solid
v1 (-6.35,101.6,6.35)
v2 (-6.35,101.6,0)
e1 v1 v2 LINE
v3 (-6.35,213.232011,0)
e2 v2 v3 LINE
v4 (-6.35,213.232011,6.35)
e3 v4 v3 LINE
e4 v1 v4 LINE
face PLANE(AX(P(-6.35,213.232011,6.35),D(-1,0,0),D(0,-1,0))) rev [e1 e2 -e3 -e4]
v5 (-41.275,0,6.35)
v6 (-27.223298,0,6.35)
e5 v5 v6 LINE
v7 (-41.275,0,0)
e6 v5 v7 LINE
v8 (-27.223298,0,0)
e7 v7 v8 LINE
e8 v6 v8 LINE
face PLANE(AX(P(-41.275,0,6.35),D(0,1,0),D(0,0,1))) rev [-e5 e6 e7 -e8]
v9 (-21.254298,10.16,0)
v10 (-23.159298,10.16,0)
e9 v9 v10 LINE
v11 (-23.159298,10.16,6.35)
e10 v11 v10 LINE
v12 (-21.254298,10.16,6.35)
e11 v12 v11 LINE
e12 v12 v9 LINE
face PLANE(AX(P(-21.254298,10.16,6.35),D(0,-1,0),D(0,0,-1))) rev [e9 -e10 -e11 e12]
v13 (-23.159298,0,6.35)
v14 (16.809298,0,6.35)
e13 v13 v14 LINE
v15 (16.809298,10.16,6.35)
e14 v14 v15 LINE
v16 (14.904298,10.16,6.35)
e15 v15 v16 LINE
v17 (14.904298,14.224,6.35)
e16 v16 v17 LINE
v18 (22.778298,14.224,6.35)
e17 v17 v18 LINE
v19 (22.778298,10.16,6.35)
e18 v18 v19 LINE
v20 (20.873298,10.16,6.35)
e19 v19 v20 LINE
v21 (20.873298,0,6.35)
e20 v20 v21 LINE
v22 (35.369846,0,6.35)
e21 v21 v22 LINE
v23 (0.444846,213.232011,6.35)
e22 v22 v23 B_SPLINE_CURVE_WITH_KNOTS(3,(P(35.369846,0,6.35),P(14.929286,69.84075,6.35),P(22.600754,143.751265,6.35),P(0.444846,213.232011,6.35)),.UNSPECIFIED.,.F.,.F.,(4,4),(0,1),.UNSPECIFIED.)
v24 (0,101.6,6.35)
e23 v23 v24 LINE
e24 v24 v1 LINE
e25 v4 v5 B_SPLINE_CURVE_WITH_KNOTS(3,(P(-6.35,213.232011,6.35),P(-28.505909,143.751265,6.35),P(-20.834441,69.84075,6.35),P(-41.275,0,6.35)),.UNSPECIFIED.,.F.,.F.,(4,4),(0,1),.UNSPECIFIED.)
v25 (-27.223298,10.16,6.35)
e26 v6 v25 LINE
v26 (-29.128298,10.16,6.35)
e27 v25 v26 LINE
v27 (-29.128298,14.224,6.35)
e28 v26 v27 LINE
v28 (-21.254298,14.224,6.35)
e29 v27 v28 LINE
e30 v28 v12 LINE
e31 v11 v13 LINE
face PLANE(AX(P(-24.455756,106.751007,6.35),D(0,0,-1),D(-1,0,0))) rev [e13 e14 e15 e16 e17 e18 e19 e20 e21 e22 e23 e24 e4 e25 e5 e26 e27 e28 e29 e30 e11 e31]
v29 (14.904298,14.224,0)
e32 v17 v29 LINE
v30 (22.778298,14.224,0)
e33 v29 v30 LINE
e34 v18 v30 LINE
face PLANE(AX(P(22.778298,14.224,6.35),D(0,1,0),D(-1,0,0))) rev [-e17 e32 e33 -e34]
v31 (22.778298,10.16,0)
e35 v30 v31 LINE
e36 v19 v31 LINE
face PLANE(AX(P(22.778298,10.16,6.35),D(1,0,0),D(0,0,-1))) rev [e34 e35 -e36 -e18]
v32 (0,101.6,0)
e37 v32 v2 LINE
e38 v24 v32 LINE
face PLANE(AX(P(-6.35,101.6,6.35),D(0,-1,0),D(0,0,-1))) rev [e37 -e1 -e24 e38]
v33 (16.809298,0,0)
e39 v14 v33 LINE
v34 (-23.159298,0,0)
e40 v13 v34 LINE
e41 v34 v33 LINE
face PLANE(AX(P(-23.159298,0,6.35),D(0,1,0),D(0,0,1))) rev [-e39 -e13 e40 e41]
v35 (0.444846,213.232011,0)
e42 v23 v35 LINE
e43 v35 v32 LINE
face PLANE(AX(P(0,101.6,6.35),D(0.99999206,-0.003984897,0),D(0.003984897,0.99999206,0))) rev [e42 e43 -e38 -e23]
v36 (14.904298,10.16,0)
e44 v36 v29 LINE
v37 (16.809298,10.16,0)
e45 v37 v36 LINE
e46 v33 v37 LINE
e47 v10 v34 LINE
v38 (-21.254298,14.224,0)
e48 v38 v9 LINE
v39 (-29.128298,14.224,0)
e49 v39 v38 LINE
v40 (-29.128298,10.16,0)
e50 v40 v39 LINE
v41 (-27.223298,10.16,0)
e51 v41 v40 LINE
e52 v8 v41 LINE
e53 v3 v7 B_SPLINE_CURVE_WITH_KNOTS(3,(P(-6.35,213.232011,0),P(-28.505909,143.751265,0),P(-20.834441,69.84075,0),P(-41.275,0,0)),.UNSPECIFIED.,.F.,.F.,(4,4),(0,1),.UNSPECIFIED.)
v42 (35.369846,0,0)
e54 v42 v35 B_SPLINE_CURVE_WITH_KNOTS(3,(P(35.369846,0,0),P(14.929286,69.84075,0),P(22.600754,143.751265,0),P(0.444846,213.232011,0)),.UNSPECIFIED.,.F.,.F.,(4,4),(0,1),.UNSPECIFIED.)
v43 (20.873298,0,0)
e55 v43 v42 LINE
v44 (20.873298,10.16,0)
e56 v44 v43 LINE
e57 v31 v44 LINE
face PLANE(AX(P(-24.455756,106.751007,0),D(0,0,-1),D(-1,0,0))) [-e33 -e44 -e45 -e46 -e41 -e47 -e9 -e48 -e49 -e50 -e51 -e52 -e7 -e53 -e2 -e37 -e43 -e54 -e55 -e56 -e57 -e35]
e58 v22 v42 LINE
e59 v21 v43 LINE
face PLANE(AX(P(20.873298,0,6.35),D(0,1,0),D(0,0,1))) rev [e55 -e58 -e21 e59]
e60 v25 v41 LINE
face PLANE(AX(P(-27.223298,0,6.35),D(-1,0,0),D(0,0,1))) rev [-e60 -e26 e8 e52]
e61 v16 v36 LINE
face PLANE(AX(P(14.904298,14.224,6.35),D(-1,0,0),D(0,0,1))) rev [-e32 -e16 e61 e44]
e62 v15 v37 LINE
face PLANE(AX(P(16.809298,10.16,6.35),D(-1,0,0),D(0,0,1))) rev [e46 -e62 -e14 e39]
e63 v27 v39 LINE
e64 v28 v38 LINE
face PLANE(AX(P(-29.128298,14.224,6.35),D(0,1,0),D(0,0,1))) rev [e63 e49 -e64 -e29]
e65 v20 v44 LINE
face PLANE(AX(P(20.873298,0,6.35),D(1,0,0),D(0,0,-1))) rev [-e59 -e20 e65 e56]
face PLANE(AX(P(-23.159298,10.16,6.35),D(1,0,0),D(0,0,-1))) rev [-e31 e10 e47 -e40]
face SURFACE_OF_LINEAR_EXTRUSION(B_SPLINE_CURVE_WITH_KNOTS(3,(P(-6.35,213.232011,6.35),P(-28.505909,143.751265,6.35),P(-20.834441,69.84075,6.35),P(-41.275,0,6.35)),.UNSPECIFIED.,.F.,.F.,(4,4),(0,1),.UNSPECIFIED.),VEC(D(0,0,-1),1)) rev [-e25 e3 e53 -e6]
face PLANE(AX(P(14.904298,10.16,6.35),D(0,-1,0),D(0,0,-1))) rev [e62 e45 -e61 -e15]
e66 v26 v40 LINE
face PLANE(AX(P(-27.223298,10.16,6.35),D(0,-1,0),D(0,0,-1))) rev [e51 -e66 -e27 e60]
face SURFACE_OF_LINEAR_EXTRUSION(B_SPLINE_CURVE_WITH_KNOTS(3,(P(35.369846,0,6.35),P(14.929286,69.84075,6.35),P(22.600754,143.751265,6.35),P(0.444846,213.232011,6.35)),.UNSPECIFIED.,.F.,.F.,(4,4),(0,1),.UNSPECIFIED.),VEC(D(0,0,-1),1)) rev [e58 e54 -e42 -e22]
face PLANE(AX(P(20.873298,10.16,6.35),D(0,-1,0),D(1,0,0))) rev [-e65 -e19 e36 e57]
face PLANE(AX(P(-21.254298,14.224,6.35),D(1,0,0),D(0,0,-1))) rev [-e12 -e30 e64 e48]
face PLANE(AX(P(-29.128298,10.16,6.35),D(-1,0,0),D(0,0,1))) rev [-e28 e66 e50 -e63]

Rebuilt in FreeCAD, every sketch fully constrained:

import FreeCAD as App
import Part
import Sketcher

V = App.Vector
Q = App.Units.Quantity

doc = App.newDocument("Part")
body = doc.addObject("PartDesign::Body", "Body")

# Sketch on XY plane
sketch1 = body.newObject("Sketcher::SketchObject", "Sketch")
sketch1.AttachmentSupport = (doc.getObject("XY_Plane"), [""])
sketch1.MapMode = "FlatFace"
sketch1.addGeometry(Part.LineSegment(V(-41.275, 0, 0), V(-27.223298, 0, 0)), False)
sketch1.addGeometry(Part.LineSegment(V(-27.223298, 0, 0), V(-27.223298, 10.16, 0)), False)
sketch1.addGeometry(Part.LineSegment(V(-27.223298, 10.16, 0), V(-29.128298, 10.16, 0)), False)
sketch1.addGeometry(Part.LineSegment(V(-29.128298, 10.16, 0), V(-29.128298, 14.224, 0)), False)
sketch1.addGeometry(Part.LineSegment(V(-29.128298, 14.224, 0), V(-21.254298, 14.224, 0)), False)
sketch1.addGeometry(Part.LineSegment(V(-21.254298, 14.224, 0), V(-21.254298, 10.16, 0)), False)
sketch1.addGeometry(Part.LineSegment(V(-21.254298, 10.16, 0), V(-23.159298, 10.16, 0)), False)
sketch1.addGeometry(Part.LineSegment(V(-23.159298, 10.16, 0), V(-23.159298, 0, 0)), False)
sketch1.addGeometry(Part.LineSegment(V(-23.159298, 0, 0), V(16.809298, 0, 0)), False)
sketch1.addGeometry(Part.LineSegment(V(16.809298, 0, 0), V(16.809298, 10.16, 0)), False)
sketch1.addGeometry(Part.LineSegment(V(16.809298, 10.16, 0), V(14.904298, 10.16, 0)), False)
sketch1.addGeometry(Part.LineSegment(V(14.904298, 10.16, 0), V(14.904298, 14.224, 0)), False)
sketch1.addGeometry(Part.LineSegment(V(14.904298, 14.224, 0), V(22.778298, 14.224, 0)), False)
sketch1.addGeometry(Part.LineSegment(V(22.778298, 14.224, 0), V(22.778298, 10.16, 0)), False)
sketch1.addGeometry(Part.LineSegment(V(22.778298, 10.16, 0), V(20.873298, 10.16, 0)), False)
sketch1.addGeometry(Part.LineSegment(V(20.873298, 10.16, 0), V(20.873298, 0, 0)), False)
sketch1.addGeometry(Part.LineSegment(V(20.873298, 0, 0), V(35.369846, 0, 0)), False)
sketch1.addGeometry(Part.BSplineCurve([V(0.444846, 213.232011, 0), V(22.600754, 143.751265, 0), V(14.929286, 69.84075, 0), V(35.369846, 0, 0)], [4, 4], [0, 1], False, 3, [1, 1, 1, 1], False), False)
sketch1.addGeometry(Part.LineSegment(V(0.444846, 213.232011, 0), V(0, 101.6, 0)), False)
sketch1.addGeometry(Part.LineSegment(V(0, 101.6, 0), V(-6.35, 101.6, 0)), False)
sketch1.addGeometry(Part.LineSegment(V(-6.35, 101.6, 0), V(-6.35, 213.232011, 0)), False)
sketch1.addGeometry(Part.BSplineCurve([V(-6.35, 213.232011, 0), V(-28.505909, 143.751265, 0), V(-20.834441, 69.84075, 0), V(-41.275, 0, 0)], [4, 4], [0, 1], False, 3, [1, 1, 1, 1], False), False)
sketch1.addConstraint(Sketcher.Constraint("Block", 17))
sketch1.addConstraint(Sketcher.Constraint("Block", 21))
sketch1.addConstraint(Sketcher.Constraint("Coincident", 0, 2, 1, 1))
sketch1.addConstraint(Sketcher.Constraint("Coincident", 1, 2, 2, 1))
sketch1.addConstraint(Sketcher.Constraint("Coincident", 2, 2, 3, 1))
sketch1.addConstraint(Sketcher.Constraint("Coincident", 3, 2, 4, 1))
sketch1.addConstraint(Sketcher.Constraint("Coincident", 4, 2, 5, 1))
sketch1.addConstraint(Sketcher.Constraint("Coincident", 5, 2, 6, 1))
sketch1.addConstraint(Sketcher.Constraint("Coincident", 6, 2, 7, 1))
sketch1.addConstraint(Sketcher.Constraint("Coincident", 7, 2, 8, 1))
sketch1.addConstraint(Sketcher.Constraint("Coincident", 8, 2, 9, 1))
sketch1.addConstraint(Sketcher.Constraint("Coincident", 9, 2, 10, 1))
sketch1.addConstraint(Sketcher.Constraint("Coincident", 10, 2, 11, 1))
sketch1.addConstraint(Sketcher.Constraint("Coincident", 11, 2, 12, 1))
sketch1.addConstraint(Sketcher.Constraint("Coincident", 12, 2, 13, 1))
sketch1.addConstraint(Sketcher.Constraint("Coincident", 13, 2, 14, 1))
sketch1.addConstraint(Sketcher.Constraint("Coincident", 14, 2, 15, 1))
sketch1.addConstraint(Sketcher.Constraint("Coincident", 15, 2, 16, 1))
sketch1.addConstraint(Sketcher.Constraint("Coincident", 16, 2, 17, 2))
sketch1.addConstraint(Sketcher.Constraint("Coincident", 17, 1, 18, 1))
sketch1.addConstraint(Sketcher.Constraint("Coincident", 18, 2, 19, 1))
sketch1.addConstraint(Sketcher.Constraint("Coincident", 19, 2, 20, 1))
sketch1.addConstraint(Sketcher.Constraint("Coincident", 20, 2, 21, 1))
sketch1.addConstraint(Sketcher.Constraint("Coincident", 21, 2, 0, 1))
sketch1.addConstraint(Sketcher.Constraint("Horizontal", 0))
sketch1.addConstraint(Sketcher.Constraint("Vertical", 1))
sketch1.addConstraint(Sketcher.Constraint("Horizontal", 2))
sketch1.addConstraint(Sketcher.Constraint("Vertical", 3))
sketch1.addConstraint(Sketcher.Constraint("Horizontal", 4))
sketch1.addConstraint(Sketcher.Constraint("Vertical", 5))
sketch1.addConstraint(Sketcher.Constraint("Horizontal", 6))
sketch1.addConstraint(Sketcher.Constraint("Vertical", 7))
sketch1.addConstraint(Sketcher.Constraint("Horizontal", 8))
sketch1.addConstraint(Sketcher.Constraint("Vertical", 9))
sketch1.addConstraint(Sketcher.Constraint("Horizontal", 10))
sketch1.addConstraint(Sketcher.Constraint("Vertical", 11))
sketch1.addConstraint(Sketcher.Constraint("Horizontal", 12))
sketch1.addConstraint(Sketcher.Constraint("Vertical", 13))
sketch1.addConstraint(Sketcher.Constraint("Horizontal", 14))
sketch1.addConstraint(Sketcher.Constraint("Vertical", 15))
sketch1.addConstraint(Sketcher.Constraint("Horizontal", 16))
sketch1.addConstraint(Sketcher.Constraint("Horizontal", 19))
sketch1.addConstraint(Sketcher.Constraint("Vertical", 20))
sketch1.addConstraint(Sketcher.Constraint("PointOnObject", 7, 2, -1))
sketch1.addConstraint(Sketcher.Constraint("PointOnObject", 18, 2, -2))
sketch1.addConstraint(Sketcher.Constraint("Horizontal", 2, 2, 5, 2))
sketch1.addConstraint(Sketcher.Constraint("Horizontal", 6, 2, 9, 2))
sketch1.addConstraint(Sketcher.Constraint("Horizontal", 4, 2, 11, 2))
sketch1.addConstraint(Sketcher.Constraint("Horizontal", 10, 2, 13, 2))
sketch1.addConstraint(Sketcher.Constraint("Equal", 2, 6))
sketch1.addConstraint(Sketcher.Constraint("Equal", 6, 10))
sketch1.addConstraint(Sketcher.Constraint("Equal", 4, 12))
sketch1.addConstraint(Sketcher.Constraint("Equal", 10, 14))
sketch1.addConstraint(Sketcher.Constraint("DistanceY", 1, 1, 1, 2, Q("0.4 in")))
sketch1.addConstraint(Sketcher.Constraint("DistanceY", -1, 1, 18, 2, Q("4 in")))
sketch1.addConstraint(Sketcher.Constraint("DistanceX", 4, 1, 4, 2, Q("0.31 in")))
sketch1.addConstraint(Sketcher.Constraint("DistanceY", 3, 1, 3, 2, Q("0.16 in")))
sketch1.addConstraint(Sketcher.Constraint("DistanceX", 2, 2, 2, 1, Q("0.075 in")))
sketch1.addConstraint(Sketcher.Constraint("DistanceX", 0, 1, 0, 2, Q("14.051702 mm")))
sketch1.addConstraint(Sketcher.Constraint("DistanceX", 8, 1, 8, 2, Q("39.968596 mm")))
pad1 = body.newObject("PartDesign::Pad", "Pad")
pad1.Profile = sketch1
pad1.Length = Q("0.25 in")

doc.recompute()
